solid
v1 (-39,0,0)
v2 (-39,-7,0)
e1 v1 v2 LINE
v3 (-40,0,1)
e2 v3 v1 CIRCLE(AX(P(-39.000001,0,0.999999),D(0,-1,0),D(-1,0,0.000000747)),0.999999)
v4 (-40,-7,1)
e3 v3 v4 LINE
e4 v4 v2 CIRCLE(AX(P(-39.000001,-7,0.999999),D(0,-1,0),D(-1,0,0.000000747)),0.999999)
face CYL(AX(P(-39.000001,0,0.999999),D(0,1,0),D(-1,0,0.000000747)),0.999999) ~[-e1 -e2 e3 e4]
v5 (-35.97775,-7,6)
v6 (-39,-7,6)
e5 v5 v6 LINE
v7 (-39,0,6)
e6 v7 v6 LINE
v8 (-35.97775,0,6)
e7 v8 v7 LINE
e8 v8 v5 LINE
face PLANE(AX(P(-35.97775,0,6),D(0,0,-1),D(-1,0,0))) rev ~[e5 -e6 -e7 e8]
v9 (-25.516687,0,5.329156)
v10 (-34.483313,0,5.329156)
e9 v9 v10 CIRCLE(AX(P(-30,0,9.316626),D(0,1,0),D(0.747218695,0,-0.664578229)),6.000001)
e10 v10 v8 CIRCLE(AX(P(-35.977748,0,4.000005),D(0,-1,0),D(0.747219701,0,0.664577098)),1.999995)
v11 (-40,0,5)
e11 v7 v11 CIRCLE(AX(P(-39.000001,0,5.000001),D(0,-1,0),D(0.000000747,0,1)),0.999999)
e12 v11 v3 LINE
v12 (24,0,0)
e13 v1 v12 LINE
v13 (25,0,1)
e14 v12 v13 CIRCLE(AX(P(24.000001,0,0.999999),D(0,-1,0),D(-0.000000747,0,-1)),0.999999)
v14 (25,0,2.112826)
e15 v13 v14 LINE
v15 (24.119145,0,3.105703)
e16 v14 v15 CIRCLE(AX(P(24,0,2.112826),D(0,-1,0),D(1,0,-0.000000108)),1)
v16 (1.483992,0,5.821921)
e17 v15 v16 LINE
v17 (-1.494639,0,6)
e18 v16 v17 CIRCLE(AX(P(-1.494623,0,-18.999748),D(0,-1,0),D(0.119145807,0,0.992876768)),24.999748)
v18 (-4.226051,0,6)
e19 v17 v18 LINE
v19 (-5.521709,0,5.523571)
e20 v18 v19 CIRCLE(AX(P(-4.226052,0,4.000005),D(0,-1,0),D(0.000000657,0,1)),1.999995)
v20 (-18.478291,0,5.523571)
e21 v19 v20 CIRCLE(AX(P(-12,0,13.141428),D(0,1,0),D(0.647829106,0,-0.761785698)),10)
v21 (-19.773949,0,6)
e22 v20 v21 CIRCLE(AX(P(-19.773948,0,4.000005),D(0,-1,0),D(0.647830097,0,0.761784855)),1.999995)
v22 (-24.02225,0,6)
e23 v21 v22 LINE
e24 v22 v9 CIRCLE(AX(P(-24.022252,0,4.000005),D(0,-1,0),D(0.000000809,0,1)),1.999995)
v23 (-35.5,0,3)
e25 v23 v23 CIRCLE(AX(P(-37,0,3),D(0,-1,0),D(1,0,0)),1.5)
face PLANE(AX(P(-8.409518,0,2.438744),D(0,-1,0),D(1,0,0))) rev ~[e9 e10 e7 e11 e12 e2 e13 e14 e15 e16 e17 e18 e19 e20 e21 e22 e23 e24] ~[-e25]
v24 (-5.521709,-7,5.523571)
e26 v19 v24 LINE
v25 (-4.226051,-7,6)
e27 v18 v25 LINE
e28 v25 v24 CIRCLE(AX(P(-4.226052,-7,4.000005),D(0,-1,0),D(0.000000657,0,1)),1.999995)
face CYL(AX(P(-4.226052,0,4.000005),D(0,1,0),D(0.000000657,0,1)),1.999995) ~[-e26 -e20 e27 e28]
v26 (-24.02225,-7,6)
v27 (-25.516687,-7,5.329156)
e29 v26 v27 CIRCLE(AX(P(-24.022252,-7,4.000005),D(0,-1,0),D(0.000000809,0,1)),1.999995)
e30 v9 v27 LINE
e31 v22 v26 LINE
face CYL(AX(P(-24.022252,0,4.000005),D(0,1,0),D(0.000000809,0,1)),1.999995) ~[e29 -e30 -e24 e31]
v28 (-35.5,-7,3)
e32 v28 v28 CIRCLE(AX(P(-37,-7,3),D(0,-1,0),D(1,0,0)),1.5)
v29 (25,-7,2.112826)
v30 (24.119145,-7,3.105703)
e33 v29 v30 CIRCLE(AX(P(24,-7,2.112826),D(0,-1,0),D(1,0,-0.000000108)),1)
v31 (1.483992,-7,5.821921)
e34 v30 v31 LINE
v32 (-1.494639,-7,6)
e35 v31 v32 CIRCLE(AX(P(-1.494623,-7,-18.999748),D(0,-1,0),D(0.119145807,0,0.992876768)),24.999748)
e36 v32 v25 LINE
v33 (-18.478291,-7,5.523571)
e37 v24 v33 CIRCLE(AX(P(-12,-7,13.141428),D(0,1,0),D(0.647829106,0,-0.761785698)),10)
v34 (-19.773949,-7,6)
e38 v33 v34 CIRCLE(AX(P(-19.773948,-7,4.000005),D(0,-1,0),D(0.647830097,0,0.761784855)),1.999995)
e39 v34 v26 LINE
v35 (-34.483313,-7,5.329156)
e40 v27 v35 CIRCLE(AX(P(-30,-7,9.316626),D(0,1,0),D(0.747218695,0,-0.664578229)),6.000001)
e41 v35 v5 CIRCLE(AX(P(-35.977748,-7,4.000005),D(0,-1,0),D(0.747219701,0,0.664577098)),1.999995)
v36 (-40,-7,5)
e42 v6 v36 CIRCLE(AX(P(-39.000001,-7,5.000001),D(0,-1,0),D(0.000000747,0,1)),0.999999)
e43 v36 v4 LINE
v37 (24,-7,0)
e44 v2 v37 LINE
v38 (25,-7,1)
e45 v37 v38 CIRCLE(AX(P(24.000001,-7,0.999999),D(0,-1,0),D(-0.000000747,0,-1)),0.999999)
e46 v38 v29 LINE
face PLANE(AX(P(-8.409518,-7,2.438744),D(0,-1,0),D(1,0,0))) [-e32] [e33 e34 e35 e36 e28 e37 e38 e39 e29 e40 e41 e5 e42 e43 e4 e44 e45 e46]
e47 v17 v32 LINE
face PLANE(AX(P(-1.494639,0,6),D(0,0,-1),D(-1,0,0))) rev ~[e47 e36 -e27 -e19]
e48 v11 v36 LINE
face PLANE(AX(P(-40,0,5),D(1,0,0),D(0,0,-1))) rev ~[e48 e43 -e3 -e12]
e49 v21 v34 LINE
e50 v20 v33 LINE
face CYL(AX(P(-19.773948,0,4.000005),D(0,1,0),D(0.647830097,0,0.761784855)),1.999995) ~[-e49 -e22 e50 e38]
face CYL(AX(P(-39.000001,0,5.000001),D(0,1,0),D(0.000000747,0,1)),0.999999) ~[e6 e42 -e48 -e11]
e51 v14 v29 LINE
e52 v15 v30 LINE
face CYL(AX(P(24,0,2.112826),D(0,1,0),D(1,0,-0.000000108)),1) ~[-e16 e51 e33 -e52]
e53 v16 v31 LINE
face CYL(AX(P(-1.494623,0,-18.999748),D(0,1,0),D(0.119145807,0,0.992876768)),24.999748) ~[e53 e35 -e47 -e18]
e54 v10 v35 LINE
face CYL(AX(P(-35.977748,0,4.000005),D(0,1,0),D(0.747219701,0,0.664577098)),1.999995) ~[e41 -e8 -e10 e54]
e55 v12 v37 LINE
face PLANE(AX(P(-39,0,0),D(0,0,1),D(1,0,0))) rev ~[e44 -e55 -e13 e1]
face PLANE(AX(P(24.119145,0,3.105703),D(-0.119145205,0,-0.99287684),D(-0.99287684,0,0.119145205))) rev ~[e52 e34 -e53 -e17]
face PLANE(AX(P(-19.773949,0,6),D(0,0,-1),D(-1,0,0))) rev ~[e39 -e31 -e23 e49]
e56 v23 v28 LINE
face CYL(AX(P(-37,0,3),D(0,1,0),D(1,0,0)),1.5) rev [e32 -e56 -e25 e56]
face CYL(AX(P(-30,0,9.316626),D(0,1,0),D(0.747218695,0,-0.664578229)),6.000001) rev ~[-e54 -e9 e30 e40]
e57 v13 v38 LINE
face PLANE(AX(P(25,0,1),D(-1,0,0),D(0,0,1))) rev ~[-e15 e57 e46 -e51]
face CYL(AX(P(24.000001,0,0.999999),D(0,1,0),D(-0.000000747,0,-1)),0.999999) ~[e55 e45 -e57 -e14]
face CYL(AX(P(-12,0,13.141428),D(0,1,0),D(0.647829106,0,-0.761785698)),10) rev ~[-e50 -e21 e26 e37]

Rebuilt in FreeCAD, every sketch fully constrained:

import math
import FreeCAD as App
import Part
import Sketcher
from FreeCAD import Vector
Q = App.Units.Quantity

doc = App.newDocument("Part")
body = doc.addObject("PartDesign::Body", "Body")

# Sketch on XZ plane
sketch1 = body.newObject("Sketcher::SketchObject", "Sketch")
sketch1.AttachmentSupport = (doc.getObject("XZ_Plane"), [""])
sketch1.MapMode = "FlatFace"
sketch1.addGeometry([
    Part.LineSegment(Vector(-39, 0, 0), Vector(24, 0, 0)),  # 0
    Part.ArcOfCircle(Part.Circle(Vector(24.000001, 0.999999, 0), Vector(0, 0, 1), 0.999999), math.radians(-90.000043), math.radians(0.000043)),  # 1
    Part.LineSegment(Vector(25, 1, 0), Vector(25, 2.112826, 0)),  # 2
    Part.ArcOfCircle(Part.Circle(Vector(24, 2.112826, 0), Vector(0, 0, 1), 1), math.radians(-0.000006), math.radians(83.157238)),  # 3
    Part.LineSegment(Vector(24.119145, 3.105703, 0), Vector(1.483992, 5.821921, 0)),  # 4
    Part.ArcOfCircle(Part.Circle(Vector(-1.494623, -18.999748, 0), Vector(0, 0, 1), 24.999748), math.radians(83.157193), math.radians(90.000036)),  # 5
    Part.LineSegment(Vector(-1.494639, 6, 0), Vector(-4.226051, 6, 0)),  # 6
    Part.ArcOfCircle(Part.Circle(Vector(-4.226052, 4.000005, 0), Vector(0, 0, 1), 1.999995), math.radians(89.999962), math.radians(130.3782)),  # 7
    Part.ArcOfCircle(Part.Circle(Vector(-12, 13.141428, 0), Vector(0, 0, 1), 10), math.radians(-130.378125), math.radians(-49.621875)),  # 8
    Part.ArcOfCircle(Part.Circle(Vector(-19.773948, 4.000005, 0), Vector(0, 0, 1), 1.999995), math.radians(49.6218), math.radians(90.000038)),  # 9
    Part.LineSegment(Vector(-19.773949, 6, 0), Vector(-24.02225, 6, 0)),  # 10
    Part.ArcOfCircle(Part.Circle(Vector(-24.022252, 4.000005, 0), Vector(0, 0, 1), 1.999995), math.radians(89.999954), math.radians(138.35011)),  # 11
    Part.ArcOfCircle(Part.Circle(Vector(-30, 9.316626, 0), Vector(0, 0, 1), 6.000001), math.radians(-138.350024), math.radians(-41.649976)),  # 12
    Part.ArcOfCircle(Part.Circle(Vector(-35.977748, 4.000005, 0), Vector(0, 0, 1), 1.999995), math.radians(41.64989), math.radians(90.000046)),  # 13
    Part.LineSegment(Vector(-35.97775, 6, 0), Vector(-39, 6, 0)),  # 14
    Part.ArcOfCircle(Part.Circle(Vector(-39.000001, 5.000001, 0), Vector(0, 0, 1), 0.999999), math.radians(89.999957), math.radians(180.000043)),  # 15
    Part.LineSegment(Vector(-40, 5, 0), Vector(-40, 1, 0)),  # 16
    Part.ArcOfCircle(Part.Circle(Vector(-39.000001, 0.999999, 0), Vector(0, 0, 1), 0.999999), math.radians(179.999957), math.radians(270.000043)),  # 17
    Part.Circle(Vector(-37, 3, 0), Vector(0, 0, 1), 1.5),  # 18
], False)
sketch1.addConstraint([
    Sketcher.Constraint("Coincident", 0, 2, 1, 1),
    Sketcher.Constraint("Coincident", 1, 2, 2, 1),
    Sketcher.Constraint("Coincident", 2, 2, 3, 1),
    Sketcher.Constraint("Coincident", 3, 2, 4, 1),
    Sketcher.Constraint("Coincident", 4, 2, 5, 1),
    Sketcher.Constraint("Coincident", 5, 2, 6, 1),
    Sketcher.Constraint("Coincident", 6, 2, 7, 1),
    Sketcher.Constraint("Coincident", 7, 2, 8, 2),
    Sketcher.Constraint("Coincident", 8, 1, 9, 1),
    Sketcher.Constraint("Coincident", 9, 2, 10, 1),
    Sketcher.Constraint("Coincident", 10, 2, 11, 1),
    Sketcher.Constraint("Coincident", 11, 2, 12, 2),
    Sketcher.Constraint("Coincident", 12, 1, 13, 1),
    Sketcher.Constraint("Coincident", 13, 2, 14, 1),
    Sketcher.Constraint("Coincident", 14, 2, 15, 1),
    Sketcher.Constraint("Coincident", 15, 2, 16, 1),
    Sketcher.Constraint("Coincident", 16, 2, 17, 1),
    Sketcher.Constraint("Coincident", 17, 2, 0, 1),
    Sketcher.Constraint("Horizontal", 0),
    Sketcher.Constraint("Vertical", 2),
    Sketcher.Constraint("Horizontal", 6),
    Sketcher.Constraint("Horizontal", 10),
    Sketcher.Constraint("Horizontal", 14),
    Sketcher.Constraint("Vertical", 16),
    Sketcher.Constraint("PointOnObject", 0, 2, -1),
    Sketcher.Constraint("Diameter", 18, Q("3 mm")),
    Sketcher.Constraint("Radius", 1, Q("0.999999 mm")),
    Sketcher.Constraint("Radius", 3, Q("1 mm")),
    Sketcher.Constraint("Radius", 8, Q("10 mm")),
    Sketcher.Constraint("Radius", 12, Q("6.000001 mm")),
    Sketcher.Constraint("Radius", 15, Q("0.999999 mm")),
    Sketcher.Constraint("Radius", 17, Q("0.999999 mm")),
    Sketcher.Constraint("DistanceX", 0, 1, 0, 2, Q("63 mm")),
    Sketcher.Constraint("DistanceY", 16, 2, 16, 1, Q("4 mm")),
    Sketcher.Constraint("DistanceX", -1, 1, 1, 3, Q("24.000001 mm")),
    Sketcher.Constraint("DistanceX", 8, 3, -1, 1, Q("12 mm")),
    Sketcher.Constraint("DistanceX", 12, 3, -1, 1, Q("30 mm")),
    Sketcher.Constraint("DistanceX", 15, 3, -1, 1, Q("39.000001 mm")),
    Sketcher.Constraint("DistanceY", -1, 1, 15, 3, Q("5.000001 mm")),
    Sketcher.Constraint("DistanceX", 18, 3, -1, 1, Q("37 mm")),
    Sketcher.Constraint("DistanceY", -1, 1, 18, 3, Q("3 mm")),
    Sketcher.Constraint("DistanceX", -1, 1, 0, 2, Q("24 mm")),
    Sketcher.Constraint("DistanceY", -1, 1, 1, 2, Q("1 mm")),
    Sketcher.Constraint("DistanceY", -1, 1, 5, 2, Q("6 mm")),
    Sketcher.Constraint("DistanceY", -1, 1, 9, 2, Q("6 mm")),
    Sketcher.Constraint("DistanceX", 14, 2, -1, 1, Q("39 mm")),
    Sketcher.Constraint("DistanceY", -1, 1, 15, 2, Q("5 mm")),
    Sketcher.Constraint("DistanceX", 10, 2, 10, 1, Q("4.248301 mm")),
    Sketcher.Constraint("Radius", 5, Q("24.999748 mm")),
    Sketcher.Constraint("Radius", 7, Q("1.999995 mm")),
    Sketcher.Constraint("Radius", 9, Q("1.999995 mm")),
    Sketcher.Constraint("Radius", 11, Q("1.999995 mm")),
    Sketcher.Constraint("Radius", 13, Q("1.999995 mm")),
    Sketcher.Constraint("DistanceX", 6, 2, 6, 1, Q("2.731412 mm")),
    Sketcher.Constraint("DistanceX", 14, 2, 14, 1, Q("3.02225 mm")),
    Sketcher.Constraint("DistanceY", 3, 3, 8, 3, Q("11.028602 mm")),
    Sketcher.Constraint("DistanceX", 11, 3, 7, 3, Q("19.796199 mm")),
    Sketcher.Constraint("DistanceY", 12, 3, 8, 3, Q("3.824802 mm")),
    Sketcher.Constraint("DistanceX", 7, 2, 4, 2, Q("7.005701 mm")),
    Sketcher.Constraint("DistanceY", 2, 1, 2, 2, Q("1.112826 mm")),
    Sketcher.Constraint("DistanceY", -1, 1, 4, 2, Q("5.821921 mm")),
    Sketcher.Constraint("DistanceX", 5, 2, -1, 1, Q("1.494639 mm")),
    Sketcher.Constraint("DistanceX", 7, 2, -1, 1, Q("5.521709 mm")),
    Sketcher.Constraint("DistanceX", 8, 1, -1, 1, Q("18.478291 mm")),
    Sketcher.Constraint("DistanceX", 9, 2, -1, 1, Q("19.773949 mm")),
    Sketcher.Constraint("DistanceY", 3, 2, 4, 2, Q("2.716218 mm")),
    Sketcher.Constraint("DistanceY", 11, 3, 11, 2, Q("1.329151 mm")),
    Sketcher.Constraint("DistanceY", 13, 3, 12, 1, Q("1.329151 mm")),
])
pad1 = body.newObject("PartDesign::Pad", "Pad")
pad1.Profile = sketch1
pad1.Length = 7

doc.recompute()
